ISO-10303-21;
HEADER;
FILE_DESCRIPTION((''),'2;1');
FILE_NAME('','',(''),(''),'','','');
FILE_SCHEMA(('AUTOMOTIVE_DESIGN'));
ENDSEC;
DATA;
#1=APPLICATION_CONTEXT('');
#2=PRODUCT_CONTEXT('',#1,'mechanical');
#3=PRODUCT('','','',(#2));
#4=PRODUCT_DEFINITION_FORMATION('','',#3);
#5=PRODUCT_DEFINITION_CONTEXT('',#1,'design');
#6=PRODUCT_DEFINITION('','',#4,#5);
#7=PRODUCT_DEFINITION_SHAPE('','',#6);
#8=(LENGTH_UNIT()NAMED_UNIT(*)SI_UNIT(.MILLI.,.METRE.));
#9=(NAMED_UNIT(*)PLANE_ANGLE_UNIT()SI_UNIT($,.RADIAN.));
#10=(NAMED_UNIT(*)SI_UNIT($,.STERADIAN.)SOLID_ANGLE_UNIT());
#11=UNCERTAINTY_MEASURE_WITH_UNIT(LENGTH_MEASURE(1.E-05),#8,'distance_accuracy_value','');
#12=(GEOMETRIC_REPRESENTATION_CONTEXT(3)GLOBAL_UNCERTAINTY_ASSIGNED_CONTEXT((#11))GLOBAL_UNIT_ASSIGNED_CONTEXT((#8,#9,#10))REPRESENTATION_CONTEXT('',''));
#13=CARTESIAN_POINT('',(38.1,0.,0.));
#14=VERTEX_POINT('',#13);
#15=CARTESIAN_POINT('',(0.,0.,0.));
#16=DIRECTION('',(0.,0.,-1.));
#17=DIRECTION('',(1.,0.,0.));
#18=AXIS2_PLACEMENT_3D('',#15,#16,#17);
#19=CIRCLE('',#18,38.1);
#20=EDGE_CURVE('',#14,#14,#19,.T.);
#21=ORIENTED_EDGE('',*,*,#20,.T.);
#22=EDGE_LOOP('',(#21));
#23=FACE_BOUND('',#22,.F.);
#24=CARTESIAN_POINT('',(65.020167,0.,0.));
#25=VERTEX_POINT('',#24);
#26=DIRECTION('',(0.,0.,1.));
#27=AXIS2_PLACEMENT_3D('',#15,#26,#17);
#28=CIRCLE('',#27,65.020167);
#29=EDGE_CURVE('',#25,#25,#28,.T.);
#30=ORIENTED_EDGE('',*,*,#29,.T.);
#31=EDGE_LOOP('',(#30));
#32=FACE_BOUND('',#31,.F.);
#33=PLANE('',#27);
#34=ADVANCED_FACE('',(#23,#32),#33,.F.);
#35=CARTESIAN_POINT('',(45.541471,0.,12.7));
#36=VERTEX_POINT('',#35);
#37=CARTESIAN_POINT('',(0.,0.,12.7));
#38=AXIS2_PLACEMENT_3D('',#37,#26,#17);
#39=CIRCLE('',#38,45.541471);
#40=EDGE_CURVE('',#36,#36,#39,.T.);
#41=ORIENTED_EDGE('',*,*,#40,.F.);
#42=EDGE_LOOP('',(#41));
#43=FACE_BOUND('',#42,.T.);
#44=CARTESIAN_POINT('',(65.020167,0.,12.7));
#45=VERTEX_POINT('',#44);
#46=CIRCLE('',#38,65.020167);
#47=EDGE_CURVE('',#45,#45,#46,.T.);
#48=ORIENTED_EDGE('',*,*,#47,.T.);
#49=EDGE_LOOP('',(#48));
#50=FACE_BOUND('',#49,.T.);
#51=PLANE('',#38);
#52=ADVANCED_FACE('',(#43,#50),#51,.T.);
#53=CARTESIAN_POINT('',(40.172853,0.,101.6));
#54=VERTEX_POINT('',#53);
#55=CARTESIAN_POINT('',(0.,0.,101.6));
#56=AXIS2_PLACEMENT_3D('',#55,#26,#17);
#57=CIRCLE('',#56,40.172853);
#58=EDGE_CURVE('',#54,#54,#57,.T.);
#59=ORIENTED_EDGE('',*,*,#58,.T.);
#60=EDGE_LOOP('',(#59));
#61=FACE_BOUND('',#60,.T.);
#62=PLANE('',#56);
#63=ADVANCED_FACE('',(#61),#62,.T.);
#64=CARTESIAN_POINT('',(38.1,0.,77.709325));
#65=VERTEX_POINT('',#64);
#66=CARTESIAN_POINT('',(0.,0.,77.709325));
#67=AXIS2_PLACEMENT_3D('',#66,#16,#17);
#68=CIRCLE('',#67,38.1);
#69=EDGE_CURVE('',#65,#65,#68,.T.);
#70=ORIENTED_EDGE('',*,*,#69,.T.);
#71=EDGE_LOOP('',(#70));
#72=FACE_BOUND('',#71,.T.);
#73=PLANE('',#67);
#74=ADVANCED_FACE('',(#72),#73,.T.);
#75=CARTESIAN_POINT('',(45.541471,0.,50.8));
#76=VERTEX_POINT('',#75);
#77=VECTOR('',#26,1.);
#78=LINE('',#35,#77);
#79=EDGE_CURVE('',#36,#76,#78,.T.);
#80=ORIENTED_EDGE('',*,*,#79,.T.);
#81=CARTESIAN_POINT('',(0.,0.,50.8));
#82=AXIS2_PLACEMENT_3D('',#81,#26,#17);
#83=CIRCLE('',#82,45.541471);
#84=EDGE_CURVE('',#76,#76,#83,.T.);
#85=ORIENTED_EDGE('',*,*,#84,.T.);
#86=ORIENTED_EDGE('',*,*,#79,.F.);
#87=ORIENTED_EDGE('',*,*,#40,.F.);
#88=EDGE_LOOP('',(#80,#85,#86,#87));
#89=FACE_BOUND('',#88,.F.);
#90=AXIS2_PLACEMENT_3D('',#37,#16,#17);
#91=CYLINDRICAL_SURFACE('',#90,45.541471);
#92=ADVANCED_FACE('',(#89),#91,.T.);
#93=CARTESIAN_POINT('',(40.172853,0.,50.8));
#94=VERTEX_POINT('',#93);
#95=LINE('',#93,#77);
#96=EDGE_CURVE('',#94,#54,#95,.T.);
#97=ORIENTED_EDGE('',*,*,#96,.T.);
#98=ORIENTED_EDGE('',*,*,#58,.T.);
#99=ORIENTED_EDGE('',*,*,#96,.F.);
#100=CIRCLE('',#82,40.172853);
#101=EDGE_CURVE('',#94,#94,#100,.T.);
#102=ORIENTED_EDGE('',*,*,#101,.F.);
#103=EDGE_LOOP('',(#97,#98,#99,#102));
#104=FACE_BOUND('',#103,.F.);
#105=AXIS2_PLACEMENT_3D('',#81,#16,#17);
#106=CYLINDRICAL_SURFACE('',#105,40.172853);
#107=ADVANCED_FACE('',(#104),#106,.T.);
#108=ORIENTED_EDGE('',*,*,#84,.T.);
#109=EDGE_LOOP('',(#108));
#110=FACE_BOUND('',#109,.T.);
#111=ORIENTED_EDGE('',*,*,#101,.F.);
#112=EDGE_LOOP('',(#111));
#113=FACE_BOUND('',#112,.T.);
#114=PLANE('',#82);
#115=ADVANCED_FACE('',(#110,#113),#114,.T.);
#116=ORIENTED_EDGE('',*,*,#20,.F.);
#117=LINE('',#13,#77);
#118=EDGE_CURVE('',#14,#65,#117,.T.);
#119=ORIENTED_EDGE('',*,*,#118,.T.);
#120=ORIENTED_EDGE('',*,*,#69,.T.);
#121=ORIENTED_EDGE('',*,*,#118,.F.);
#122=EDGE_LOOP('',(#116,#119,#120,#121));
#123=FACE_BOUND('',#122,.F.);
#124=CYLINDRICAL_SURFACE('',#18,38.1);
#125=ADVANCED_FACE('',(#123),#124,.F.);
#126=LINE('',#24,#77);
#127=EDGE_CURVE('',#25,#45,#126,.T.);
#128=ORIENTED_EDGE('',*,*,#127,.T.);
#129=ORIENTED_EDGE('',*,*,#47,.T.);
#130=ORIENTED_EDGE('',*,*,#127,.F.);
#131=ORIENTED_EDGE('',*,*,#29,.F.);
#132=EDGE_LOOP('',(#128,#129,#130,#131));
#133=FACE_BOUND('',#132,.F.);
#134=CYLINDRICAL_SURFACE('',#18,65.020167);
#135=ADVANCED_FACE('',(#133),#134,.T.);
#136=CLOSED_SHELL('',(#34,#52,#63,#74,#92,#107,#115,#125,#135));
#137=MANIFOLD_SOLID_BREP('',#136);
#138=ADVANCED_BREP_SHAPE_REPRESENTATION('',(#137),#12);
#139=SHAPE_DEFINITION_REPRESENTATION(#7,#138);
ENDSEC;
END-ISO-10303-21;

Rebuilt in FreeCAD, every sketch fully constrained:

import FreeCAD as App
import Part
import Sketcher

V = App.Vector
Q = App.Units.Quantity

doc = App.newDocument("Part")
params = doc.addObject("Spreadsheet::Sheet", "Params")
for row, (alias, value) in enumerate([
    ("pad1_length", "0.5 in"),
    ("pad2_length", "1.5 in"),
    ("pad3_length", "2 in"),
    ("sketch4_diameter", "3 in"),
    ("pocket1_length", "77.709325 mm"),
], start=1):
    params.set(f"A{row}", alias)
    params.set(f"B{row}", "=" + value)
    params.setAlias(f"B{row}", alias)

body = doc.addObject("PartDesign::Body", "Body")

sketch1 = doc.addObject("Sketcher::SketchObject", "Sketch")
body.addObject(sketch1)
sketch1.AttachmentSupport = (doc.XY_Plane, [""])
sketch1.MapMode = "FlatFace"
sketch1.addGeometry(Part.Circle(V(0, 0, 0), V(0, 0, 1), 65), False)
sketch1.addConstraint([
    Sketcher.Constraint("Coincident", 0, 3, -1, 1),
    Sketcher.Constraint("Diameter", 0, 130.040334),
])
pad1 = doc.addObject("PartDesign::Pad", "Pad")
body.addObject(pad1)
pad1.Profile = sketch1
pad1.setExpression("Length", "Params.pad1_length")

sketch2 = doc.addObject("Sketcher::SketchObject", "Sketch001")
body.addObject(sketch2)
sketch2.AttachmentSupport = (doc.XY_Plane, [""])
sketch2.MapMode = "FlatFace"
sketch2.AttachmentOffset = App.Placement(V(0, 0, 0.5 * 25.4), App.Rotation())
sketch2.addGeometry(Part.Circle(V(0, 0, 0), V(0, 0, 1), 46), False)
sketch2.addConstraint([
    Sketcher.Constraint("Coincident", 0, 3, -1, 1),
    Sketcher.Constraint("Diameter", 0, 91.082942),
])
pad2 = doc.addObject("PartDesign::Pad", "Pad001")
body.addObject(pad2)
pad2.Profile = sketch2
pad2.setExpression("Length", "Params.pad2_length")

sketch3 = doc.addObject("Sketcher::SketchObject", "Sketch002")
body.addObject(sketch3)
sketch3.AttachmentSupport = (doc.XY_Plane, [""])
sketch3.MapMode = "FlatFace"
sketch3.AttachmentOffset = App.Placement(V(0, 0, 2 * 25.4), App.Rotation())
sketch3.addGeometry(Part.Circle(V(0, 0, 0), V(0, 0, 1), 40), False)
sketch3.addConstraint([
    Sketcher.Constraint("Coincident", 0, 3, -1, 1),
    Sketcher.Constraint("Diameter", 0, 80.345706),
])
pad3 = doc.addObject("PartDesign::Pad", "Pad002")
body.addObject(pad3)
pad3.Profile = sketch3
pad3.setExpression("Length", "Params.pad3_length")

sketch4 = doc.addObject("Sketcher::SketchObject", "Sketch003")
body.addObject(sketch4)
sketch4.AttachmentSupport = (doc.XY_Plane, [""])
sketch4.MapMode = "FlatFace"
sketch4.addGeometry(Part.Circle(V(0, 0, 0), V(0, 0, 1), 38), False)
sketch4.addConstraint([
    Sketcher.Constraint("Coincident", 0, 3, -1, 1),
    Sketcher.Constraint("Diameter", 0, Q("3 in")),
])
sketch4.setExpression("Constraints[1]", "Params.sketch4_diameter")
pocket1 = doc.addObject("PartDesign::Pocket", "Pocket")
body.addObject(pocket1)
pocket1.Profile = sketch4
pocket1.setExpression("Length", "Params.pocket1_length")
pocket1.Reversed = True

doc.recompute()
